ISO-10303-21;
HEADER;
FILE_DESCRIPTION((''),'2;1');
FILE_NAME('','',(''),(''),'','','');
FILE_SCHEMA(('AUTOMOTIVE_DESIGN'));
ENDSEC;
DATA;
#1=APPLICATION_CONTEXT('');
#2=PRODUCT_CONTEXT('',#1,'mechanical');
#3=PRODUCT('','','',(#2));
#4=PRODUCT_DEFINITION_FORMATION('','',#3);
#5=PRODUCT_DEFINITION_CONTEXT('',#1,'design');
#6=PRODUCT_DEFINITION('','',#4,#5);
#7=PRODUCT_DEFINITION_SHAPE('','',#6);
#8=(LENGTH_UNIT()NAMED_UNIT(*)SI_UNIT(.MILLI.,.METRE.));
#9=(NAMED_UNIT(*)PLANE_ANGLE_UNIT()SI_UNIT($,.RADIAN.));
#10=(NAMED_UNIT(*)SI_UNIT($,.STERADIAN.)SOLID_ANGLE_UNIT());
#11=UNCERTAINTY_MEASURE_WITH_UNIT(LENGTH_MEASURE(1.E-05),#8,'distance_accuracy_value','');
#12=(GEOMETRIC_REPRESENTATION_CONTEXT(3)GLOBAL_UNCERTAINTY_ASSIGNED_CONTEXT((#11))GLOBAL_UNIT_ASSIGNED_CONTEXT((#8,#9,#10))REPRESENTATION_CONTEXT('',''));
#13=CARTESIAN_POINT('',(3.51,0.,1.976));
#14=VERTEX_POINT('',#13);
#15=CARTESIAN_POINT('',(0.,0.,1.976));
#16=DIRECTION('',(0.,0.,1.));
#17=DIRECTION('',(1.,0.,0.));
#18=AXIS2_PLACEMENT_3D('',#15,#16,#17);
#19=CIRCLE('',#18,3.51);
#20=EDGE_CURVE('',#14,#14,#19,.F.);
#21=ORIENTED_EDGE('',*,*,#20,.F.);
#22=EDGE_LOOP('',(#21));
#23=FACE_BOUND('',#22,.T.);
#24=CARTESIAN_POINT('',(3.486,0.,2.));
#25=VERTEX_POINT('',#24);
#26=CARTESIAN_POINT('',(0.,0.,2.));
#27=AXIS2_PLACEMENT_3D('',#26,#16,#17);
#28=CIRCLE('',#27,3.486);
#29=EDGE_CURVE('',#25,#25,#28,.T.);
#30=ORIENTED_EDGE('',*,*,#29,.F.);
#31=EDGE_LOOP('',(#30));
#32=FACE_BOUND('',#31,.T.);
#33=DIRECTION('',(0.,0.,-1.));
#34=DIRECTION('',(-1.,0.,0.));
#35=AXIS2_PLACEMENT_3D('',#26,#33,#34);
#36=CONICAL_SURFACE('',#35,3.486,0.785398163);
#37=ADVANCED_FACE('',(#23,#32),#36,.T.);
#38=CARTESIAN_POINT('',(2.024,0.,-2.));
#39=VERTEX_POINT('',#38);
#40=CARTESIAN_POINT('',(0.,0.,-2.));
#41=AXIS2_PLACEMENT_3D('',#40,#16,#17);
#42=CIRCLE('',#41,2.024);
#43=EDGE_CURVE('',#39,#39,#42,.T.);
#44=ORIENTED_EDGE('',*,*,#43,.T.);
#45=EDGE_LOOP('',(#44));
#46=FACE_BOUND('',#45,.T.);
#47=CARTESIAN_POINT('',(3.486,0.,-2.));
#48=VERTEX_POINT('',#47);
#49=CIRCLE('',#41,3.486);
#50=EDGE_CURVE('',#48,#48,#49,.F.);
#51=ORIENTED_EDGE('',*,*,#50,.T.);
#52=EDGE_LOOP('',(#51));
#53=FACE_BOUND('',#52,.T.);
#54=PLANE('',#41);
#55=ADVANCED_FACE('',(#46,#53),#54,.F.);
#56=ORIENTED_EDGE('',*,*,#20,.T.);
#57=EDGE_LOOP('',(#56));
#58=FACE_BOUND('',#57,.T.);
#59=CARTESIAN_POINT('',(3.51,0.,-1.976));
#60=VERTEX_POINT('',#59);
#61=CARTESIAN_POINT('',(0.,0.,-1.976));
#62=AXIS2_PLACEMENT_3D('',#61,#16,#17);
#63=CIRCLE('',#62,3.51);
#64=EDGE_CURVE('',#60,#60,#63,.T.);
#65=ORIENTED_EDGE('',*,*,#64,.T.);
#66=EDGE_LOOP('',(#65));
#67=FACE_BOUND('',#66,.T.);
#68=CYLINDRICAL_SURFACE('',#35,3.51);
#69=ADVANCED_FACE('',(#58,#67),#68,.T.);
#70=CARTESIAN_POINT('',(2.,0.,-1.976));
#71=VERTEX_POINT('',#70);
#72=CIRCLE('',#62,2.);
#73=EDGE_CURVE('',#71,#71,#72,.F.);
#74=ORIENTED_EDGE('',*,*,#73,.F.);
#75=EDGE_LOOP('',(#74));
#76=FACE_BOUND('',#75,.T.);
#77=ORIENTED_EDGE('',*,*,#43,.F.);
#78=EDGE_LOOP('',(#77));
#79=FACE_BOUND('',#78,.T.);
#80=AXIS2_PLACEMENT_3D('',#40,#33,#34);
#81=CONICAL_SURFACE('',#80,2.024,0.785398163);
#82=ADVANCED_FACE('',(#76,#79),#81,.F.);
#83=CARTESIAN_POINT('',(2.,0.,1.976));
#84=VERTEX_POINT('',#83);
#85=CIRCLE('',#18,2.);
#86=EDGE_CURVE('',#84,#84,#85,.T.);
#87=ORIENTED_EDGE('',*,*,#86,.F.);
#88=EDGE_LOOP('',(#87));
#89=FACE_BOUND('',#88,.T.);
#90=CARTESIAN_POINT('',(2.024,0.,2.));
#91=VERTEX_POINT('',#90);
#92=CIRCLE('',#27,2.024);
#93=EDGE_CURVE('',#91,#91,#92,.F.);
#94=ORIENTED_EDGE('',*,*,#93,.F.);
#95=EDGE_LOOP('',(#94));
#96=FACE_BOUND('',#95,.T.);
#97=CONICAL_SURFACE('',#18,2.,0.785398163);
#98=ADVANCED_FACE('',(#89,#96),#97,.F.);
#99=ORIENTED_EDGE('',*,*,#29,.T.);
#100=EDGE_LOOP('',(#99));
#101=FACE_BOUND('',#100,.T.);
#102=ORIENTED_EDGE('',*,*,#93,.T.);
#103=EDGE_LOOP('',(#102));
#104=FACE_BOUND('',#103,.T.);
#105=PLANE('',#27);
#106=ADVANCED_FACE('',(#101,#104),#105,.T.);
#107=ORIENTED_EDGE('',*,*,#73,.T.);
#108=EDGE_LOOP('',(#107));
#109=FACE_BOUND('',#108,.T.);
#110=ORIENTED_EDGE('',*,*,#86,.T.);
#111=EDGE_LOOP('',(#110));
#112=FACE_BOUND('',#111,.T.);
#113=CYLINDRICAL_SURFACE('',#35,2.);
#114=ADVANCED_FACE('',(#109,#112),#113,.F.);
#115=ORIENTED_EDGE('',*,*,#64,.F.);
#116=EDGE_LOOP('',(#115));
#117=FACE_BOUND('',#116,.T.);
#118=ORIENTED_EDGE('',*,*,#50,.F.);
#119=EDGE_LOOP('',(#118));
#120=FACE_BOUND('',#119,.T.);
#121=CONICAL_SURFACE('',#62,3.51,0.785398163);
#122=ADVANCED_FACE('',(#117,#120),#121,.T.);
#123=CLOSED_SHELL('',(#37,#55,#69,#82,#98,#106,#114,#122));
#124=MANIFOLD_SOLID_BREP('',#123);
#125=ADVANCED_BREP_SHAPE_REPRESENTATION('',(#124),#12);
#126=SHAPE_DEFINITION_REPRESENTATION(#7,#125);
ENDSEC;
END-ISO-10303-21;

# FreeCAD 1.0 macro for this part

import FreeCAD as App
import Part
import Sketcher
from FreeCAD import Vector
Q = App.Units.Quantity


def edges_at(feature, points):
    """Names of the edges that pass closest to the given points."""
    edges = feature.Shape.Edges
    near = lambda p: min(range(len(edges)), key=lambda i: edges[i].distToShape(Part.Vertex(*p))[0])
    return sorted({f"Edge{near(p) + 1}" for p in points})

doc = App.newDocument("Part")
body = doc.addObject("PartDesign::Body", "Body")

sketch1 = doc.addObject("Sketcher::SketchObject", "Sketch")
body.addObject(sketch1)
sketch1.AttachmentSupport = (doc.XY_Plane, [""])
sketch1.MapMode = "FlatFace"
sketch1.addGeometry([
    Part.Circle(Vector(0, 0, 0), Vector(0, 0, 1), 3.5),
    Part.Circle(Vector(0, 0, 0), Vector(0, 0, 1), 2),
], False)
sketch1.addConstraint([
    Sketcher.Constraint("Coincident", 0, 3, -1, 1),
    Sketcher.Constraint("Coincident", 1, 3, -1, 1),
    Sketcher.Constraint("Diameter", 1, Q("4 mm")),
    Sketcher.Constraint("Diameter", 0, Q("7.02 mm")),
])
pad1 = doc.addObject("PartDesign::Pad", "Pad")
body.addObject(pad1)
pad1.Profile = sketch1
pad1.Type = "TwoLengths"
pad1.Length = 2
pad1.Length2 = 2
doc.recompute()

chamfer = doc.addObject("PartDesign::Chamfer", "Chamfer")
body.addObject(chamfer)
chamfer.Base = (pad1, edges_at(pad1, [
    (-3.51, 0, 2),
    (-2, 0, 2),
    (-3.51, 0, -2),
    (-2, 0, -2),
]))
chamfer.Size = 0.024

doc.recompute()
